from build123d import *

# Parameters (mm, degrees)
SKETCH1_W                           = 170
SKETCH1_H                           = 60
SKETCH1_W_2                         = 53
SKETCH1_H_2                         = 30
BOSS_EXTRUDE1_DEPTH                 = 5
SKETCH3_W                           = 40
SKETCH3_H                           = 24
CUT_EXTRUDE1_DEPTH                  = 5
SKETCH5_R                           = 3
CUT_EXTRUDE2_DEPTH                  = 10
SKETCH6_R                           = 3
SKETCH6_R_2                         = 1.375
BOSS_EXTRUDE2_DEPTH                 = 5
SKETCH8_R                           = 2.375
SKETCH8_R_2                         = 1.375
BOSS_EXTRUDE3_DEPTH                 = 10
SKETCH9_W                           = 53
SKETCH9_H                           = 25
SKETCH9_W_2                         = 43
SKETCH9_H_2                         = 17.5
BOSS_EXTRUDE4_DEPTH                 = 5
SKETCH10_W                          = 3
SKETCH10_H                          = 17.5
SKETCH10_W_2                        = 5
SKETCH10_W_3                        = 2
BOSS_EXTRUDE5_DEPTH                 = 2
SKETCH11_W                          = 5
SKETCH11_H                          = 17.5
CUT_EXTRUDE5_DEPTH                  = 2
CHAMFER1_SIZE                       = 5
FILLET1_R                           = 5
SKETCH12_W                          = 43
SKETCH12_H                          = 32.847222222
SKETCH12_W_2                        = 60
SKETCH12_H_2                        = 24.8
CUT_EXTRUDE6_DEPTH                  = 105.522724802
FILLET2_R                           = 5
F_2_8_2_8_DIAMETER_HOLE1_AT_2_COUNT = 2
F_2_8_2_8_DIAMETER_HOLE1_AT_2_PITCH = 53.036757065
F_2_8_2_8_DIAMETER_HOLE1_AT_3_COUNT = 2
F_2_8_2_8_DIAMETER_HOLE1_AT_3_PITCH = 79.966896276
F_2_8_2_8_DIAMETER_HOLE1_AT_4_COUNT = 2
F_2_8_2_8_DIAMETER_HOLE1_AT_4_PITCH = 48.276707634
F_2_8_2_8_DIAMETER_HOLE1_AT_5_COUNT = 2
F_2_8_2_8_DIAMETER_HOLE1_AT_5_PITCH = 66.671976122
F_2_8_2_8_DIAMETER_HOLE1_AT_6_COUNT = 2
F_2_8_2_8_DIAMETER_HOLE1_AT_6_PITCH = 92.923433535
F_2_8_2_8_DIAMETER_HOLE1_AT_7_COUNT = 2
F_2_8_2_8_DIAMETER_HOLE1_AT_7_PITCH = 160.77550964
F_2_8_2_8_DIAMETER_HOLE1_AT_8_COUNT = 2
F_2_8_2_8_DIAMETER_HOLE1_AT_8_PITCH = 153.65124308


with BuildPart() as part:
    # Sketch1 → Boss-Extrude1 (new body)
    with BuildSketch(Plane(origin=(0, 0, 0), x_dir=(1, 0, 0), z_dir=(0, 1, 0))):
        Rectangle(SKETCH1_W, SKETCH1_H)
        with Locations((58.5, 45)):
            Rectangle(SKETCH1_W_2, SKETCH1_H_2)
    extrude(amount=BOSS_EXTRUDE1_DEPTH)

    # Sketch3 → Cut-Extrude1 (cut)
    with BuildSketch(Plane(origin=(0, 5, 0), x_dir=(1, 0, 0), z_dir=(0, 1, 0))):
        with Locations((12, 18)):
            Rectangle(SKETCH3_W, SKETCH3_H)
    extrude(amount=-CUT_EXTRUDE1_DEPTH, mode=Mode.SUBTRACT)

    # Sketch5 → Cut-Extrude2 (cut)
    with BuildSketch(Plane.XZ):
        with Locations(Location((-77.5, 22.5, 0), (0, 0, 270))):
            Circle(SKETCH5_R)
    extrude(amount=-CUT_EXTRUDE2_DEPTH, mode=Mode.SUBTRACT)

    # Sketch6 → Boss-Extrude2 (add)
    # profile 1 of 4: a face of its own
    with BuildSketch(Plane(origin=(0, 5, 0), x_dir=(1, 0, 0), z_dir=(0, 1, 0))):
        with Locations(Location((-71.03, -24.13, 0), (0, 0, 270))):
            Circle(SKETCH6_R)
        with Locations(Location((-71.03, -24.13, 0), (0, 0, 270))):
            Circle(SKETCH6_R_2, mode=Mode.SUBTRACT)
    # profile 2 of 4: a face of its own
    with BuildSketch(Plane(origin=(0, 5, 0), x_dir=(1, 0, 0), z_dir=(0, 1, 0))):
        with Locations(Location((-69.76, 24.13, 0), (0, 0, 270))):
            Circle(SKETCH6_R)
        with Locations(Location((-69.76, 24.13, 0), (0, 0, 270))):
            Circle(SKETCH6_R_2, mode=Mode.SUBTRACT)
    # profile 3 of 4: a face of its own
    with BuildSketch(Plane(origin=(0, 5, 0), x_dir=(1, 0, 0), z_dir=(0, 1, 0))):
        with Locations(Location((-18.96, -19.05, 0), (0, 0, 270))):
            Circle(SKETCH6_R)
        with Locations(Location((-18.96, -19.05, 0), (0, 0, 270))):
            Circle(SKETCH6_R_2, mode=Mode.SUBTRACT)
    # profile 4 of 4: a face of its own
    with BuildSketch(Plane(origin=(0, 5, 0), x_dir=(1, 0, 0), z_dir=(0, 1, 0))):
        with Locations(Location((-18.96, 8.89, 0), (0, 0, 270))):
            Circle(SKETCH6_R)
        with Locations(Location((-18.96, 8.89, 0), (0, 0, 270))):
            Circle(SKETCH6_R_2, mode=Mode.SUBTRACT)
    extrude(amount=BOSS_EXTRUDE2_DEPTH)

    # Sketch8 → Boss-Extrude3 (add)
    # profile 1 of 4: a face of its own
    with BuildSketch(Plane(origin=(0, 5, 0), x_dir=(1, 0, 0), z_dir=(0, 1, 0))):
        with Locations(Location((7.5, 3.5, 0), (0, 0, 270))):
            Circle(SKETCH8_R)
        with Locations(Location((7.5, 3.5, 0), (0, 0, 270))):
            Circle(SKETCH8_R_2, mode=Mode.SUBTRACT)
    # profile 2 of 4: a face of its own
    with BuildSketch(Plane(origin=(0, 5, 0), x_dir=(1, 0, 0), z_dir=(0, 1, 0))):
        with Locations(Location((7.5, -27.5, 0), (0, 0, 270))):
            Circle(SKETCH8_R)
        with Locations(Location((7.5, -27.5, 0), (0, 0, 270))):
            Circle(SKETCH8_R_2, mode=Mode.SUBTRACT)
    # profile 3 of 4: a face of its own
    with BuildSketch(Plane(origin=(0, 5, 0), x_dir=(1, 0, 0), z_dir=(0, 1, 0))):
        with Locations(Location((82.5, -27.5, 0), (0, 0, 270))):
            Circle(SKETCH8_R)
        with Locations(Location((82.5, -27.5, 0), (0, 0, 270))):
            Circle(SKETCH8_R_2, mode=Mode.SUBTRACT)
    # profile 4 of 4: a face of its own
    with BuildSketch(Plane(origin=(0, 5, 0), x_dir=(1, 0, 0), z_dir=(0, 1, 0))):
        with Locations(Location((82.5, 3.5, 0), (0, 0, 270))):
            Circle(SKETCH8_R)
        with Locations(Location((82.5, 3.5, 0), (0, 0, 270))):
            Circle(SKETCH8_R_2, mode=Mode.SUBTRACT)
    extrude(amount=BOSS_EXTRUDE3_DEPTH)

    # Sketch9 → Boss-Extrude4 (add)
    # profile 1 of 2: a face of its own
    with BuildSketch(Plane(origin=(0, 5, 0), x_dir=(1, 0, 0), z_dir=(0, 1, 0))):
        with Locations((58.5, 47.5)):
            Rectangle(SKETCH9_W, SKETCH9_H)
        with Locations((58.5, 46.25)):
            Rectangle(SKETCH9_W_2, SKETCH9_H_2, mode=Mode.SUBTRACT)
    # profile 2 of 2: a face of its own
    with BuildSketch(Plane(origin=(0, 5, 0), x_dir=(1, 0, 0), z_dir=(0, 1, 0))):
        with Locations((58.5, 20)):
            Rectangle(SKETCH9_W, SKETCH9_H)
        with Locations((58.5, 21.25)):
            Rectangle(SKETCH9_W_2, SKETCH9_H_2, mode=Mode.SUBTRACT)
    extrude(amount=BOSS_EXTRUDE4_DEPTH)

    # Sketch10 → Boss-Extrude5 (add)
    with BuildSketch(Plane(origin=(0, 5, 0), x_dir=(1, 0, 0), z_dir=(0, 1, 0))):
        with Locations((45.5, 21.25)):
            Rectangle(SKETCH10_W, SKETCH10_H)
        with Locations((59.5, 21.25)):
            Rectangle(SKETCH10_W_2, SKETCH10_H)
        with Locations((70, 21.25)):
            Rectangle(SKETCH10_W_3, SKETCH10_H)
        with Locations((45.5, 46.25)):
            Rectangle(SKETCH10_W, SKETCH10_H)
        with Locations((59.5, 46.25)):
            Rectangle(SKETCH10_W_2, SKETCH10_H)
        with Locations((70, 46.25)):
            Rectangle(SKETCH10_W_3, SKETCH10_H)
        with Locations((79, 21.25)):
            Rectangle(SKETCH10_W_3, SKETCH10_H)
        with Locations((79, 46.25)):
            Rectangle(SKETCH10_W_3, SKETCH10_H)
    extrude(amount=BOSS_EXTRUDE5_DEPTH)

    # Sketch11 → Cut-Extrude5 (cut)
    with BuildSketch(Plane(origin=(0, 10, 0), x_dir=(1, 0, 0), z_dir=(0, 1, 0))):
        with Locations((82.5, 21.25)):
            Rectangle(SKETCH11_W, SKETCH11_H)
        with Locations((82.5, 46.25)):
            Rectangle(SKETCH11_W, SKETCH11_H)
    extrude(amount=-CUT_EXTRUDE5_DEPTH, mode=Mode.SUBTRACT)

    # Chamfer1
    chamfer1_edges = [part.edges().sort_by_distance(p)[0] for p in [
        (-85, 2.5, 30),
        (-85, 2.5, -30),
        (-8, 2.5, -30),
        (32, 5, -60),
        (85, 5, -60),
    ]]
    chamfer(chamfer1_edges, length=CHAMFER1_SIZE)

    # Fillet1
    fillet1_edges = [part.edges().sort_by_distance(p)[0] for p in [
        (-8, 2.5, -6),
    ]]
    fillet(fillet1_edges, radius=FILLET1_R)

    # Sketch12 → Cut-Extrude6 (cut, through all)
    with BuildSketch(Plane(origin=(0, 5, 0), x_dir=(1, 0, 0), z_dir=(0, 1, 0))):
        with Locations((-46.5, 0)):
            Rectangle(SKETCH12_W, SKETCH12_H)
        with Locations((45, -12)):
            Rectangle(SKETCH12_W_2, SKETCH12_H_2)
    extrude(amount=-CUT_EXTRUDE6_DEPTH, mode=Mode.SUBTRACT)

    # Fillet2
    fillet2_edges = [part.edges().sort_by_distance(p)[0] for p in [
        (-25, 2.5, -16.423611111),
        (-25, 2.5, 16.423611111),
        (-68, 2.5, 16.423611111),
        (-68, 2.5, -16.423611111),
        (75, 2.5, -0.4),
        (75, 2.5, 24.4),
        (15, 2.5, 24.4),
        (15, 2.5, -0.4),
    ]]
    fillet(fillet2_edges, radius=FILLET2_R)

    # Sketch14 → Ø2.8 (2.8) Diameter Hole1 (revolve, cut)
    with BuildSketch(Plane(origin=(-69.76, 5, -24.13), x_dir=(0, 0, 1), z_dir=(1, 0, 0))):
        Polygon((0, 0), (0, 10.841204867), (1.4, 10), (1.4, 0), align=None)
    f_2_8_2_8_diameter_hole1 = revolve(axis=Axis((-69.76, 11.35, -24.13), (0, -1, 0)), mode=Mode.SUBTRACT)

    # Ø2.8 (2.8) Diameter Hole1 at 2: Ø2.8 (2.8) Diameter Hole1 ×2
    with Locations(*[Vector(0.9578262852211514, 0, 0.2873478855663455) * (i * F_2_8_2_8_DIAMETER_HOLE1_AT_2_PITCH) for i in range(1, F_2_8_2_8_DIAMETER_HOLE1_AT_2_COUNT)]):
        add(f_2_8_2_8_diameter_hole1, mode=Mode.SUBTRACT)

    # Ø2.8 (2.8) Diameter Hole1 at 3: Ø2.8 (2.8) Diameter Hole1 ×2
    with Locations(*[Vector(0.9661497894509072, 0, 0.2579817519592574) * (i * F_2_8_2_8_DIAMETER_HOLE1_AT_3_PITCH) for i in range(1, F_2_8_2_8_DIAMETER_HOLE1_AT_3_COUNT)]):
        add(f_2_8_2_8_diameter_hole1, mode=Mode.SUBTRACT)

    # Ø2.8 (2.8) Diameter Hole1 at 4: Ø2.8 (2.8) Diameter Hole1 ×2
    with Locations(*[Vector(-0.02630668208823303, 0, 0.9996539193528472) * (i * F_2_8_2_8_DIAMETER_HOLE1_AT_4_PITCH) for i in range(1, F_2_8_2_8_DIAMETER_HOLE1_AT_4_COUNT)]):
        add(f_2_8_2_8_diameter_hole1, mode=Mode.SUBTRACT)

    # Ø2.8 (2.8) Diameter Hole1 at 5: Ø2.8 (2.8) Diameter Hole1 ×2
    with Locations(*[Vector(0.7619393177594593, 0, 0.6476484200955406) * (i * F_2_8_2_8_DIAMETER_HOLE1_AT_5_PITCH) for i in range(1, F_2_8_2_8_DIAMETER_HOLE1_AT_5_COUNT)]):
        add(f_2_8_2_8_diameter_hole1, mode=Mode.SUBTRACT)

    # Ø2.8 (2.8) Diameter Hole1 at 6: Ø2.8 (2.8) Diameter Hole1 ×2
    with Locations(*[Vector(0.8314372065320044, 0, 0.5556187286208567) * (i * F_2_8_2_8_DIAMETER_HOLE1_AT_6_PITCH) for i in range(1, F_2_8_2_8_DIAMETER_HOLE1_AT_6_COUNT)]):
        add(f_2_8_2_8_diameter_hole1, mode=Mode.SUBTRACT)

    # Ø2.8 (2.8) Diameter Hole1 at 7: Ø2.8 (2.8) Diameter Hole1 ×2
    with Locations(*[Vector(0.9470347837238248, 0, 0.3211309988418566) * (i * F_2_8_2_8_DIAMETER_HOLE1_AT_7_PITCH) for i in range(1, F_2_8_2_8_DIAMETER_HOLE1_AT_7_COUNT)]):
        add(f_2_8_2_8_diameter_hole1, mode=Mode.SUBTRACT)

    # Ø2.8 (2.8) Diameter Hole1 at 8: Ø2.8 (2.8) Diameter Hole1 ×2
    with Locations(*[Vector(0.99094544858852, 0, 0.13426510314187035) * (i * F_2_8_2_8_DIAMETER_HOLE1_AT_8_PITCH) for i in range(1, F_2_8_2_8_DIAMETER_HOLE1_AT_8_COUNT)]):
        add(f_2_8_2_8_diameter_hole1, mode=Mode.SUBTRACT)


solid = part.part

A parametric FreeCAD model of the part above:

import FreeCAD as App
import Part
import Sketcher
Q = App.Units.Quantity


def edges_at(feature, points):
    """Names of the edges that pass closest to the given points."""
    edges = feature.Shape.Edges
    near = lambda p: min(range(len(edges)), key=lambda i: edges[i].distToShape(Part.Vertex(*p))[0])
    return sorted({f"Edge{near(p) + 1}" for p in points})

doc = App.newDocument("Part")
body = doc.addObject("PartDesign::Body", "Body")

# Sketch on XZ plane
sketch1 = body.newObject("Sketcher::SketchObject", "Sketch")
sketch1.AttachmentSupport = (doc.getObject("XZ_Plane"), [""])
sketch1.MapMode = "FlatFace"
sketch1.addGeometry(Part.LineSegment(App.Vector(-85, -30, 0), App.Vector(-85, 30, 0)), False)
sketch1.addGeometry(Part.LineSegment(App.Vector(-85, 30, 0), App.Vector(85, 30, 0)), False)
sketch1.addGeometry(Part.LineSegment(App.Vector(85, 30, 0), App.Vector(85, -60, 0)), False)
sketch1.addGeometry(Part.LineSegment(App.Vector(85, -60, 0), App.Vector(32, -60, 0)), False)
sketch1.addGeometry(Part.LineSegment(App.Vector(32, -60, 0), App.Vector(32, -30, 0)), False)
sketch1.addGeometry(Part.LineSegment(App.Vector(32, -30, 0), App.Vector(-85, -30, 0)), False)
sketch1.addConstraint(Sketcher.Constraint("Coincident", 0, 2, 1, 1))
sketch1.addConstraint(Sketcher.Constraint("Coincident", 1, 2, 2, 1))
sketch1.addConstraint(Sketcher.Constraint("Coincident", 2, 2, 3, 1))
sketch1.addConstraint(Sketcher.Constraint("Coincident", 3, 2, 4, 1))
sketch1.addConstraint(Sketcher.Constraint("Coincident", 4, 2, 5, 1))
sketch1.addConstraint(Sketcher.Constraint("Coincident", 5, 2, 0, 1))
sketch1.addConstraint(Sketcher.Constraint("Vertical", 0))
sketch1.addConstraint(Sketcher.Constraint("Horizontal", 1))
sketch1.addConstraint(Sketcher.Constraint("Vertical", 2))
sketch1.addConstraint(Sketcher.Constraint("Horizontal", 3))
sketch1.addConstraint(Sketcher.Constraint("Vertical", 4))
sketch1.addConstraint(Sketcher.Constraint("Horizontal", 5))
sketch1.addConstraint(Sketcher.Constraint("Symmetric", 1, 2, 5, 2, -1, 1))
sketch1.addConstraint(Sketcher.Constraint("DistanceX", 1, 1, 1, 2, Q("170 mm")))
sketch1.addConstraint(Sketcher.Constraint("DistanceX", 3, 2, 3, 1, Q("53 mm")))
sketch1.addConstraint(Sketcher.Constraint("DistanceY", 0, 1, 0, 2, Q("60 mm")))
sketch1.addConstraint(Sketcher.Constraint("DistanceY", 2, 2, 2, 1, Q("90 mm")))
pad1 = body.newObject("PartDesign::Pad", "Pad")
pad1.Profile = sketch1
pad1.Length = 5
pad1.Reversed = True

# Sketch on XZ plane
sketch2 = body.newObject("Sketcher::SketchObject", "Sketch001")
sketch2.AttachmentSupport = (doc.getObject("XZ_Plane"), [""])
sketch2.MapMode = "FlatFace"
sketch2.AttachmentOffset = App.Placement(App.Vector(0, 0, -5), App.Rotation())
sketch2.addGeometry(Part.LineSegment(App.Vector(-8, -30, 0), App.Vector(-8, -6, 0)), False)
sketch2.addGeometry(Part.LineSegment(App.Vector(-8, -6, 0), App.Vector(32, -6, 0)), False)
sketch2.addGeometry(Part.LineSegment(App.Vector(32, -6, 0), App.Vector(32, -30, 0)), False)
sketch2.addGeometry(Part.LineSegment(App.Vector(32, -30, 0), App.Vector(-8, -30, 0)), False)
sketch2.addConstraint(Sketcher.Constraint("Coincident", 0, 2, 1, 1))
sketch2.addConstraint(Sketcher.Constraint("Coincident", 1, 2, 2, 1))
sketch2.addConstraint(Sketcher.Constraint("Coincident", 2, 2, 3, 1))
sketch2.addConstraint(Sketcher.Constraint("Coincident", 3, 2, 0, 1))
sketch2.addConstraint(Sketcher.Constraint("Vertical", 0))
sketch2.addConstraint(Sketcher.Constraint("Horizontal", 1))
sketch2.addConstraint(Sketcher.Constraint("Vertical", 2))
sketch2.addConstraint(Sketcher.Constraint("Horizontal", 3))
sketch2.addConstraint(Sketcher.Constraint("DistanceX", 1, 1, 1, 2, Q("40 mm")))
sketch2.addConstraint(Sketcher.Constraint("DistanceY", 0, 1, 0, 2, Q("24 mm")))
sketch2.addConstraint(Sketcher.Constraint("DistanceX", 0, 2, -1, 1, Q("8 mm")))
sketch2.addConstraint(Sketcher.Constraint("DistanceY", 0, 2, -1, 1, Q("6 mm")))
pocket1 = body.newObject("PartDesign::Pocket", "Pocket")
pocket1.Profile = sketch2
pocket1.Length = 5
pocket1.Reversed = True

# Sketch on XZ plane
sketch3 = body.newObject("Sketcher::SketchObject", "Sketch002")
sketch3.AttachmentSupport = (doc.getObject("XZ_Plane"), [""])
sketch3.MapMode = "FlatFace"
sketch3.addGeometry(Part.Circle(App.Vector(-77.5, 22.5, 0), App.Vector(0, 0, 1), 3), False)
sketch3.addConstraint(Sketcher.Constraint("Diameter", 0, Q("6 mm")))
sketch3.addConstraint(Sketcher.Constraint("DistanceX", 0, 3, -1, 1, Q("77.5 mm")))
sketch3.addConstraint(Sketcher.Constraint("DistanceY", -1, 1, 0, 3, Q("22.5 mm")))
pocket2 = body.newObject("PartDesign::Pocket", "Pocket001")
pocket2.Profile = sketch3
pocket2.Length = 10

# Sketch on XZ plane
sketch4 = body.newObject("Sketcher::SketchObject", "Sketch003")
sketch4.AttachmentSupport = (doc.getObject("XZ_Plane"), [""])
sketch4.MapMode = "FlatFace"
sketch4.AttachmentOffset = App.Placement(App.Vector(0, 0, -5), App.Rotation())
sketch4.addGeometry(Part.Circle(App.Vector(-71, 24.1, 0), App.Vector(0, 0, 1), 3), False)
sketch4.addGeometry(Part.Circle(App.Vector(-71, 24.1, 0), App.Vector(0, 0, 1), 1.4), False)
sketch4.addGeometry(Part.Circle(App.Vector(-69.8, -24.1, 0), App.Vector(0, 0, 1), 3), False)
sketch4.addGeometry(Part.Circle(App.Vector(-69.8, -24.1, 0), App.Vector(0, 0, 1), 1.4), False)
sketch4.addGeometry(Part.Circle(App.Vector(-19, 19.1, 0), App.Vector(0, 0, 1), 3), False)
sketch4.addGeometry(Part.Circle(App.Vector(-19, 19.1, 0), App.Vector(0, 0, 1), 1.4), False)
sketch4.addGeometry(Part.Circle(App.Vector(-19, -8.9, 0), App.Vector(0, 0, 1), 3), False)
sketch4.addGeometry(Part.Circle(App.Vector(-19, -8.9, 0), App.Vector(0, 0, 1), 1.4), False)
sketch4.addConstraint(Sketcher.Constraint("Coincident", 1, 3, 0, 3))
sketch4.addConstraint(Sketcher.Constraint("Coincident", 3, 3, 2, 3))
sketch4.addConstraint(Sketcher.Constraint("Coincident", 5, 3, 4, 3))
sketch4.addConstraint(Sketcher.Constraint("Coincident", 7, 3, 6, 3))
sketch4.addConstraint(Sketcher.Constraint("Equal", 0, 2))
sketch4.addConstraint(Sketcher.Constraint("Equal", 1, 3))
sketch4.addConstraint(Sketcher.Constraint("Equal", 2, 4))
sketch4.addConstraint(Sketcher.Constraint("Equal", 3, 5))
sketch4.addConstraint(Sketcher.Constraint("Equal", 4, 6))
sketch4.addConstraint(Sketcher.Constraint("Equal", 5, 7))
sketch4.addConstraint(Sketcher.Constraint("Vertical", 5, 3, 6, 3))
sketch4.addConstraint(Sketcher.Constraint("Diameter", 0, Q("6 mm")))
sketch4.addConstraint(Sketcher.Constraint("Diameter", 1, Q("2.75 mm")))
sketch4.addConstraint(Sketcher.Constraint("DistanceX", 2, 3, 4, 3, Q("50.8 mm")))
sketch4.addConstraint(Sketcher.Constraint("DistanceX", 0, 3, -1, 1, Q("71.03 mm")))
sketch4.addConstraint(Sketcher.Constraint("DistanceY", -1, 1, 0, 3, Q("24.13 mm")))
sketch4.addConstraint(Sketcher.Constraint("DistanceX", 2, 3, -1, 1, Q("69.76 mm")))
sketch4.addConstraint(Sketcher.Constraint("DistanceY", 2, 3, -1, 1, Q("24.13 mm")))
sketch4.addConstraint(Sketcher.Constraint("DistanceY", -1, 1, 4, 3, Q("19.05 mm")))
sketch4.addConstraint(Sketcher.Constraint("DistanceY", 6, 3, -1, 1, Q("8.89 mm")))
pad2 = body.newObject("PartDesign::Pad", "Pad001")
pad2.Profile = sketch4
pad2.Length = 5
pad2.Reversed = True

# Sketch on XZ plane
sketch5 = body.newObject("Sketcher::SketchObject", "Sketch004")
sketch5.AttachmentSupport = (doc.getObject("XZ_Plane"), [""])
sketch5.MapMode = "FlatFace"
sketch5.AttachmentOffset = App.Placement(App.Vector(0, 0, -5), App.Rotation())
sketch5.addGeometry(Part.Circle(App.Vector(7.5, -3.5, 0), App.Vector(0, 0, 1), 2.4), False)
sketch5.addGeometry(Part.Circle(App.Vector(7.5, -3.5, 0), App.Vector(0, 0, 1), 1.4), False)
sketch5.addGeometry(Part.Circle(App.Vector(7.5, 27.5, 0), App.Vector(0, 0, 1), 2.4), False)
sketch5.addGeometry(Part.Circle(App.Vector(7.5, 27.5, 0), App.Vector(0, 0, 1), 1.4), False)
sketch5.addGeometry(Part.Circle(App.Vector(82.5, 27.5, 0), App.Vector(0, 0, 1), 2.4), False)
sketch5.addGeometry(Part.Circle(App.Vector(82.5, 27.5, 0), App.Vector(0, 0, 1), 1.4), False)
sketch5.addGeometry(Part.Circle(App.Vector(82.5, -3.5, 0), App.Vector(0, 0, 1), 2.4), False)
sketch5.addGeometry(Part.Circle(App.Vector(82.5, -3.5, 0), App.Vector(0, 0, 1), 1.4), False)
sketch5.addConstraint(Sketcher.Constraint("Coincident", 1, 3, 0, 3))
sketch5.addConstraint(Sketcher.Constraint("Coincident", 3, 3, 2, 3))
sketch5.addConstraint(Sketcher.Constraint("Coincident", 5, 3, 4, 3))
sketch5.addConstraint(Sketcher.Constraint("Coincident", 7, 3, 6, 3))
sketch5.addConstraint(Sketcher.Constraint("Equal", 0, 2))
sketch5.addConstraint(Sketcher.Constraint("Equal", 1, 3))
sketch5.addConstraint(Sketcher.Constraint("Equal", 2, 4))
sketch5.addConstraint(Sketcher.Constraint("Equal", 3, 5))
sketch5.addConstraint(Sketcher.Constraint("Equal", 4, 6))
sketch5.addConstraint(Sketcher.Constraint("Equal", 5, 7))
sketch5.addConstraint(Sketcher.Constraint("Horizontal", 3, 3, 4, 3))
sketch5.addConstraint(Sketcher.Constraint("Horizontal", 1, 3, 6, 3))
sketch5.addConstraint(Sketcher.Constraint("Vertical", 1, 3, 2, 3))
sketch5.addConstraint(Sketcher.Constraint("Vertical", 5, 3, 6, 3))
sketch5.addConstraint(Sketcher.Constraint("Diameter", 0, Q("4.75 mm")))
sketch5.addConstraint(Sketcher.Constraint("Diameter", 1, Q("2.75 mm")))
sketch5.addConstraint(Sketcher.Constraint("DistanceY", 0, 3, 2, 3, Q("31 mm")))
sketch5.addConstraint(Sketcher.Constraint("DistanceX", 2, 3, 4, 3, Q("75 mm")))
sketch5.addConstraint(Sketcher.Constraint("DistanceX", -1, 1, 0, 3, Q("7.5 mm")))
sketch5.addConstraint(Sketcher.Constraint("DistanceY", 0, 3, -1, 1, Q("3.5 mm")))
pad3 = body.newObject("PartDesign::Pad", "Pad002")
pad3.Profile = sketch5
pad3.Length = 10
pad3.Reversed = True

# Sketch on XZ plane
sketch6 = body.newObject("Sketcher::SketchObject", "Sketch005")
sketch6.AttachmentSupport = (doc.getObject("XZ_Plane"), [""])
sketch6.MapMode = "FlatFace"
sketch6.AttachmentOffset = App.Placement(App.Vector(0, 0, -5), App.Rotation())
sketch6.addGeometry(Part.LineSegment(App.Vector(32, -60, 0), App.Vector(32, -35, 0)), False)
sketch6.addGeometry(Part.LineSegment(App.Vector(32, -35, 0), App.Vector(85, -35, 0)), False)
sketch6.addGeometry(Part.LineSegment(App.Vector(85, -35, 0), App.Vector(85, -60, 0)), False)
sketch6.addGeometry(Part.LineSegment(App.Vector(85, -60, 0), App.Vector(32, -60, 0)), False)
sketch6.addGeometry(Part.LineSegment(App.Vector(80, -38, 0), App.Vector(37, -38, 0)), False)
sketch6.addGeometry(Part.LineSegment(App.Vector(37, -38, 0), App.Vector(37, -55, 0)), False)
sketch6.addGeometry(Part.LineSegment(App.Vector(37, -55, 0), App.Vector(80, -55, 0)), False)
sketch6.addGeometry(Part.LineSegment(App.Vector(80, -55, 0), App.Vector(80, -38, 0)), False)
sketch6.addGeometry(Part.LineSegment(App.Vector(32, -32, 0), App.Vector(32, -8, 0)), False)
sketch6.addGeometry(Part.LineSegment(App.Vector(32, -8, 0), App.Vector(85, -8, 0)), False)
sketch6.addGeometry(Part.LineSegment(App.Vector(85, -8, 0), App.Vector(85, -32, 0)), False)
sketch6.addGeometry(Part.LineSegment(App.Vector(85, -32, 0), App.Vector(32, -32, 0)), False)
sketch6.addGeometry(Part.LineSegment(App.Vector(80, -12, 0), App.Vector(37, -12, 0)), False)
sketch6.addGeometry(Part.LineSegment(App.Vector(37, -12, 0), App.Vector(37, -30, 0)), False)
sketch6.addGeometry(Part.LineSegment(App.Vector(37, -30, 0), App.Vector(80, -30, 0)), False)
sketch6.addGeometry(Part.LineSegment(App.Vector(80, -30, 0), App.Vector(80, -12, 0)), False)
sketch6.addConstraint(Sketcher.Constraint("Coincident", 0, 2, 1, 1))
sketch6.addConstraint(Sketcher.Constraint("Coincident", 1, 2, 2, 1))
sketch6.addConstraint(Sketcher.Constraint("Coincident", 2, 2, 3, 1))
sketch6.addConstraint(Sketcher.Constraint("Coincident", 3, 2, 0, 1))
sketch6.addConstraint(Sketcher.Constraint("Coincident", 4, 2, 5, 1))
sketch6.addConstraint(Sketcher.Constraint("Coincident", 5, 2, 6, 1))
sketch6.addConstraint(Sketcher.Constraint("Coincident", 6, 2, 7, 1))
sketch6.addConstraint(Sketcher.Constraint("Coincident", 7, 2, 4, 1))
sketch6.addConstraint(Sketcher.Constraint("Coincident", 8, 2, 9, 1))
sketch6.addConstraint(Sketcher.Constraint("Coincident", 9, 2, 10, 1))
sketch6.addConstraint(Sketcher.Constraint("Coincident", 10, 2, 11, 1))
sketch6.addConstraint(Sketcher.Constraint("Coincident", 11, 2, 8, 1))
sketch6.addConstraint(Sketcher.Constraint("Coincident", 12, 2, 13, 1))
sketch6.addConstraint(Sketcher.Constraint("Coincident", 13, 2, 14, 1))
sketch6.addConstraint(Sketcher.Constraint("Coincident", 14, 2, 15, 1))
sketch6.addConstraint(Sketcher.Constraint("Coincident", 15, 2, 12, 1))
sketch6.addConstraint(Sketcher.Constraint("Vertical", 0))
sketch6.addConstraint(Sketcher.Constraint("Horizontal", 1))
sketch6.addConstraint(Sketcher.Constraint("Vertical", 2))
sketch6.addConstraint(Sketcher.Constraint("Horizontal", 3))
sketch6.addConstraint(Sketcher.Constraint("Horizontal", 4))
sketch6.addConstraint(Sketcher.Constraint("Vertical", 5))
sketch6.addConstraint(Sketcher.Constraint("Horizontal", 6))
sketch6.addConstraint(Sketcher.Constraint("Vertical", 7))
sketch6.addConstraint(Sketcher.Constraint("Vertical", 8))
sketch6.addConstraint(Sketcher.Constraint("Horizontal", 9))
sketch6.addConstraint(Sketcher.Constraint("Vertical", 10))
sketch6.addConstraint(Sketcher.Constraint("Horizontal", 11))
sketch6.addConstraint(Sketcher.Constraint("Horizontal", 12))
sketch6.addConstraint(Sketcher.Constraint("Vertical", 13))
sketch6.addConstraint(Sketcher.Constraint("Horizontal", 14))
sketch6.addConstraint(Sketcher.Constraint("Vertical", 15))
sketch6.addConstraint(Sketcher.Constraint("Vertical", 3, 2, 8, 2))
sketch6.addConstraint(Sketcher.Constraint("Vertical", 2, 2, 9, 2))
sketch6.addConstraint(Sketcher.Constraint("Vertical", 5, 2, 12, 2))
sketch6.addConstraint(Sketcher.Constraint("Vertical", 7, 2, 14, 2))
sketch6.addConstraint(Sketcher.Constraint("Equal", 2, 8))
sketch6.addConstraint(Sketcher.Constraint("Equal", 7, 13))
sketch6.addConstraint(Sketcher.Constraint("DistanceX", 1, 1, 1, 2, Q("53 mm")))
sketch6.addConstraint(Sketcher.Constraint("DistanceX", 4, 2, 4, 1, Q("43 mm")))
sketch6.addConstraint(Sketcher.Constraint("DistanceY", 0, 1, 0, 2, Q("25 mm")))
sketch6.addConstraint(Sketcher.Constraint("DistanceY", 5, 2, 5, 1, Q("17.5 mm")))
sketch6.addConstraint(Sketcher.Constraint("DistanceX", -1, 1, 0, 2, Q("32 mm")))
sketch6.addConstraint(Sketcher.Constraint("DistanceY", 0, 2, -1, 1, Q("35 mm")))
sketch6.addConstraint(Sketcher.Constraint("DistanceX", -1, 1, 4, 2, Q("37 mm")))
sketch6.addConstraint(Sketcher.Constraint("DistanceY", 5, 2, -1, 1, Q("55 mm")))
sketch6.addConstraint(Sketcher.Constraint("DistanceY", 13, 2, -1, 1, Q("30 mm")))
sketch6.addConstraint(Sketcher.Constraint("DistanceY", 4, 2, 8, 2, Q("30 mm")))
pad4 = body.newObject("PartDesign::Pad", "Pad003")
pad4.Profile = sketch6
pad4.Length = 5
pad4.Reversed = True

# Sketch on XZ plane
sketch7 = body.newObject("Sketcher::SketchObject", "Sketch006")
sketch7.AttachmentSupport = (doc.getObject("XZ_Plane"), [""])
sketch7.MapMode = "FlatFace"
sketch7.AttachmentOffset = App.Placement(App.Vector(0, 0, -5), App.Rotation())
sketch7.addGeometry(Part.LineSegment(App.Vector(44, -30, 0), App.Vector(44, -12.5, 0)), False)
sketch7.addGeometry(Part.LineSegment(App.Vector(44, -12.5, 0), App.Vector(47, -12.5, 0)), False)
sketch7.addGeometry(Part.LineSegment(App.Vector(47, -12.5, 0), App.Vector(47, -30, 0)), False)
sketch7.addGeometry(Part.LineSegment(App.Vector(47, -30, 0), App.Vector(44, -30, 0)), False)
sketch7.addGeometry(Part.LineSegment(App.Vector(57, -30, 0), App.Vector(57, -12.5, 0)), False)
sketch7.addGeometry(Part.LineSegment(App.Vector(57, -12.5, 0), App.Vector(62, -12.5, 0)), False)
sketch7.addGeometry(Part.LineSegment(App.Vector(62, -12.5, 0), App.Vector(62, -30, 0)), False)
sketch7.addGeometry(Part.LineSegment(App.Vector(62, -30, 0), App.Vector(57, -30, 0)), False)
sketch7.addGeometry(Part.LineSegment(App.Vector(69, -30, 0), App.Vector(69, -12.5, 0)), False)
sketch7.addGeometry(Part.LineSegment(App.Vector(69, -12.5, 0), App.Vector(71, -12.5, 0)), False)
sketch7.addGeometry(Part.LineSegment(App.Vector(71, -12.5, 0), App.Vector(71, -30, 0)), False)
sketch7.addGeometry(Part.LineSegment(App.Vector(71, -30, 0), App.Vector(69, -30, 0)), False)
sketch7.addGeometry(Part.LineSegment(App.Vector(44, -55, 0), App.Vector(44, -37.5, 0)), False)
sketch7.addGeometry(Part.LineSegment(App.Vector(44, -37.5, 0), App.Vector(47, -37.5, 0)), False)
sketch7.addGeometry(Part.LineSegment(App.Vector(47, -37.5, 0), App.Vector(47, -55, 0)), False)
sketch7.addGeometry(Part.LineSegment(App.Vector(47, -55, 0), App.Vector(44, -55, 0)), False)
sketch7.addGeometry(Part.LineSegment(App.Vector(57, -55, 0), App.Vector(57, -37.5, 0)), False)
sketch7.addGeometry(Part.LineSegment(App.Vector(57, -37.5, 0), App.Vector(62, -37.5, 0)), False)
sketch7.addGeometry(Part.LineSegment(App.Vector(62, -37.5, 0), App.Vector(62, -55, 0)), False)
sketch7.addGeometry(Part.LineSegment(App.Vector(62, -55, 0), App.Vector(57, -55, 0)), False)
sketch7.addGeometry(Part.LineSegment(App.Vector(69, -55, 0), App.Vector(69, -37.5, 0)), False)
sketch7.addGeometry(Part.LineSegment(App.Vector(69, -37.5, 0), App.Vector(71, -37.5, 0)), False)
sketch7.addGeometry(Part.LineSegment(App.Vector(71, -37.5, 0), App.Vector(71, -55, 0)), False)
sketch7.addGeometry(Part.LineSegment(App.Vector(71, -55, 0), App.Vector(69, -55, 0)), False)
sketch7.addGeometry(Part.LineSegment(App.Vector(78, -30, 0), App.Vector(78, -12.5, 0)), False)
sketch7.addGeometry(Part.LineSegment(App.Vector(78, -12.5, 0), App.Vector(80, -12.5, 0)), False)
sketch7.addGeometry(Part.LineSegment(App.Vector(80, -12.5, 0), App.Vector(80, -30, 0)), False)
sketch7.addGeometry(Part.LineSegment(App.Vector(80, -30, 0), App.Vector(78, -30, 0)), False)
sketch7.addGeometry(Part.LineSegment(App.Vector(78, -55, 0), App.Vector(78, -37.5, 0)), False)
sketch7.addGeometry(Part.LineSegment(App.Vector(78, -37.5, 0), App.Vector(80, -37.5, 0)), False)
sketch7.addGeometry(Part.LineSegment(App.Vector(80, -37.5, 0), App.Vector(80, -55, 0)), False)
sketch7.addGeometry(Part.LineSegment(App.Vector(80, -55, 0), App.Vector(78, -55, 0)), False)
sketch7.addConstraint(Sketcher.Constraint("Coincident", 0, 2, 1, 1))
sketch7.addConstraint(Sketcher.Constraint("Coincident", 1, 2, 2, 1))
sketch7.addConstraint(Sketcher.Constraint("Coincident", 2, 2, 3, 1))
sketch7.addConstraint(Sketcher.Constraint("Coincident", 3, 2, 0, 1))
sketch7.addConstraint(Sketcher.Constraint("Coincident", 4, 2, 5, 1))
sketch7.addConstraint(Sketcher.Constraint("Coincident", 5, 2, 6, 1))
sketch7.addConstraint(Sketcher.Constraint("Coincident", 6, 2, 7, 1))
sketch7.addConstraint(Sketcher.Constraint("Coincident", 7, 2, 4, 1))
sketch7.addConstraint(Sketcher.Constraint("Coincident", 8, 2, 9, 1))
sketch7.addConstraint(Sketcher.Constraint("Coincident", 9, 2, 10, 1))
sketch7.addConstraint(Sketcher.Constraint("Coincident", 10, 2, 11, 1))
sketch7.addConstraint(Sketcher.Constraint("Coincident", 11, 2, 8, 1))
sketch7.addConstraint(Sketcher.Constraint("Coincident", 12, 2, 13, 1))
sketch7.addConstraint(Sketcher.Constraint("Coincident", 13, 2, 14, 1))
sketch7.addConstraint(Sketcher.Constraint("Coincident", 14, 2, 15, 1))
sketch7.addConstraint(Sketcher.Constraint("Coincident", 15, 2, 12, 1))
sketch7.addConstraint(Sketcher.Constraint("Coincident", 16, 2, 17, 1))
sketch7.addConstraint(Sketcher.Constraint("Coincident", 17, 2, 18, 1))
sketch7.addConstraint(Sketcher.Constraint("Coincident", 18, 2, 19, 1))
sketch7.addConstraint(Sketcher.Constraint("Coincident", 19, 2, 16, 1))
sketch7.addConstraint(Sketcher.Constraint("Coincident", 20, 2, 21, 1))
sketch7.addConstraint(Sketcher.Constraint("Coincident", 21, 2, 22, 1))
sketch7.addConstraint(Sketcher.Constraint("Coincident", 22, 2, 23, 1))
sketch7.addConstraint(Sketcher.Constraint("Coincident", 23, 2, 20, 1))
sketch7.addConstraint(Sketcher.Constraint("Coincident", 24, 2, 25, 1))
sketch7.addConstraint(Sketcher.Constraint("Coincident", 25, 2, 26, 1))
sketch7.addConstraint(Sketcher.Constraint("Coincident", 26, 2, 27, 1))
sketch7.addConstraint(Sketcher.Constraint("Coincident", 27, 2, 24, 1))
sketch7.addConstraint(Sketcher.Constraint("Coincident", 28, 2, 29, 1))
sketch7.addConstraint(Sketcher.Constraint("Coincident", 29, 2, 30, 1))
sketch7.addConstraint(Sketcher.Constraint("Coincident", 30, 2, 31, 1))
sketch7.addConstraint(Sketcher.Constraint("Coincident", 31, 2, 28, 1))
sketch7.addConstraint(Sketcher.Constraint("Vertical", 0))
sketch7.addConstraint(Sketcher.Constraint("Horizontal", 1))
sketch7.addConstraint(Sketcher.Constraint("Vertical", 2))
sketch7.addConstraint(Sketcher.Constraint("Horizontal", 3))
sketch7.addConstraint(Sketcher.Constraint("Vertical", 4))
sketch7.addConstraint(Sketcher.Constraint("Horizontal", 5))
sketch7.addConstraint(Sketcher.Constraint("Vertical", 6))
sketch7.addConstraint(Sketcher.Constraint("Horizontal", 7))
sketch7.addConstraint(Sketcher.Constraint("Vertical", 8))
sketch7.addConstraint(Sketcher.Constraint("Horizontal", 9))
sketch7.addConstraint(Sketcher.Constraint("Vertical", 10))
sketch7.addConstraint(Sketcher.Constraint("Horizontal", 11))
sketch7.addConstraint(Sketcher.Constraint("Vertical", 12))
sketch7.addConstraint(Sketcher.Constraint("Horizontal", 13))
sketch7.addConstraint(Sketcher.Constraint("Vertical", 14))
sketch7.addConstraint(Sketcher.Constraint("Horizontal", 15))
sketch7.addConstraint(Sketcher.Constraint("Vertical", 16))
sketch7.addConstraint(Sketcher.Constraint("Horizontal", 17))
sketch7.addConstraint(Sketcher.Constraint("Vertical", 18))
sketch7.addConstraint(Sketcher.Constraint("Horizontal", 19))
sketch7.addConstraint(Sketcher.Constraint("Vertical", 20))
sketch7.addConstraint(Sketcher.Constraint("Horizontal", 21))
sketch7.addConstraint(Sketcher.Constraint("Vertical", 22))
sketch7.addConstraint(Sketcher.Constraint("Horizontal", 23))
sketch7.addConstraint(Sketcher.Constraint("Vertical", 24))
sketch7.addConstraint(Sketcher.Constraint("Horizontal", 25))
sketch7.addConstraint(Sketcher.Constraint("Vertical", 26))
sketch7.addConstraint(Sketcher.Constraint("Horizontal", 27))
sketch7.addConstraint(Sketcher.Constraint("Vertical", 28))
sketch7.addConstraint(Sketcher.Constraint("Horizontal", 29))
sketch7.addConstraint(Sketcher.Constraint("Vertical", 30))
sketch7.addConstraint(Sketcher.Constraint("Horizontal", 31))
sketch7.addConstraint(Sketcher.Constraint("Horizontal", 1, 2, 4, 2))
sketch7.addConstraint(Sketcher.Constraint("Horizontal", 3, 2, 6, 2))
sketch7.addConstraint(Sketcher.Constraint("Horizontal", 5, 2, 8, 2))
sketch7.addConstraint(Sketcher.Constraint("Horizontal", 7, 2, 10, 2))
sketch7.addConstraint(Sketcher.Constraint("Horizontal", 13, 2, 16, 2))
sketch7.addConstraint(Sketcher.Constraint("Horizontal", 15, 2, 18, 2))
sketch7.addConstraint(Sketcher.Constraint("Horizontal", 17, 2, 20, 2))
sketch7.addConstraint(Sketcher.Constraint("Horizontal", 19, 2, 22, 2))
sketch7.addConstraint(Sketcher.Constraint("Horizontal", 9, 2, 24, 2))
sketch7.addConstraint(Sketcher.Constraint("Horizontal", 11, 2, 26, 2))
sketch7.addConstraint(Sketcher.Constraint("Horizontal", 21, 2, 28, 2))
sketch7.addConstraint(Sketcher.Constraint("Horizontal", 23, 2, 30, 2))
sketch7.addConstraint(Sketcher.Constraint("Vertical", 3, 2, 12, 2))
sketch7.addConstraint(Sketcher.Constraint("Vertical", 2, 2, 13, 2))
sketch7.addConstraint(Sketcher.Constraint("Vertical", 7, 2, 16, 2))
sketch7.addConstraint(Sketcher.Constraint("Vertical", 6, 2, 17, 2))
sketch7.addConstraint(Sketcher.Constraint("Vertical", 11, 2, 20, 2))
sketch7.addConstraint(Sketcher.Constraint("Vertical", 10, 2, 21, 2))
sketch7.addConstraint(Sketcher.Constraint("Vertical", 27, 2, 28, 2))
sketch7.addConstraint(Sketcher.Constraint("Vertical", 26, 2, 29, 2))
sketch7.addConstraint(Sketcher.Constraint("Equal", 23, 25))
sketch7.addConstraint(Sketcher.Constraint("Equal", 10, 12))
sketch7.addConstraint(Sketcher.Constraint("DistanceX", 1, 1, 1, 2, Q("3 mm")))
sketch7.addConstraint(Sketcher.Constraint("DistanceX", 5, 1, 5, 2, Q("5 mm")))
sketch7.addConstraint(Sketcher.Constraint("DistanceX", 9, 1, 9, 2, Q("2 mm")))
sketch7.addConstraint(Sketcher.Constraint("DistanceY", 0, 1, 0, 2, Q("17.5 mm")))
sketch7.addConstraint(Sketcher.Constraint("DistanceX", -1, 1, 0, 2, Q("44 mm")))
sketch7.addConstraint(Sketcher.Constraint("DistanceY", 2, 2, -1, 1, Q("30 mm")))
sketch7.addConstraint(Sketcher.Constraint("DistanceX", -1, 1, 4, 2, Q("57 mm")))
sketch7.addConstraint(Sketcher.Constraint("DistanceX", -1, 1, 8, 2, Q("69 mm")))
sketch7.addConstraint(Sketcher.Constraint("DistanceY", 14, 2, -1, 1, Q("55 mm")))
sketch7.addConstraint(Sketcher.Constraint("DistanceX", -1, 1, 24, 2, Q("78 mm")))
pad5 = body.newObject("PartDesign::Pad", "Pad004")
pad5.Profile = sketch7
pad5.Length = 2
pad5.Reversed = True

# Sketch on XZ plane
sketch8 = body.newObject("Sketcher::SketchObject", "Sketch007")
sketch8.AttachmentSupport = (doc.getObject("XZ_Plane"), [""])
sketch8.MapMode = "FlatFace"
sketch8.AttachmentOffset = App.Placement(App.Vector(0, 0, -10), App.Rotation())
sketch8.addGeometry(Part.LineSegment(App.Vector(80, -30, 0), App.Vector(80, -12, 0)), False)
sketch8.addGeometry(Part.LineSegment(App.Vector(80, -12, 0), App.Vector(85, -12, 0)), False)
sketch8.addGeometry(Part.LineSegment(App.Vector(85, -12, 0), App.Vector(85, -30, 0)), False)
sketch8.addGeometry(Part.LineSegment(App.Vector(85, -30, 0), App.Vector(80, -30, 0)), False)
sketch8.addGeometry(Part.LineSegment(App.Vector(80, -55, 0), App.Vector(80, -38, 0)), False)
sketch8.addGeometry(Part.LineSegment(App.Vector(80, -38, 0), App.Vector(85, -38, 0)), False)
sketch8.addGeometry(Part.LineSegment(App.Vector(85, -38, 0), App.Vector(85, -55, 0)), False)
sketch8.addGeometry(Part.LineSegment(App.Vector(85, -55, 0), App.Vector(80, -55, 0)), False)
sketch8.addConstraint(Sketcher.Constraint("Coincident", 0, 2, 1, 1))
sketch8.addConstraint(Sketcher.Constraint("Coincident", 1, 2, 2, 1))
sketch8.addConstraint(Sketcher.Constraint("Coincident", 2, 2, 3, 1))
sketch8.addConstraint(Sketcher.Constraint("Coincident", 3, 2, 0, 1))
sketch8.addConstraint(Sketcher.Constraint("Coincident", 4, 2, 5, 1))
sketch8.addConstraint(Sketcher.Constraint("Coincident", 5, 2, 6, 1))
sketch8.addConstraint(Sketcher.Constraint("Coincident", 6, 2, 7, 1))
sketch8.addConstraint(Sketcher.Constraint("Coincident", 7, 2, 4, 1))
sketch8.addConstraint(Sketcher.Constraint("Vertical", 0))
sketch8.addConstraint(Sketcher.Constraint("Horizontal", 1))
sketch8.addConstraint(Sketcher.Constraint("Vertical", 2))
sketch8.addConstraint(Sketcher.Constraint("Horizontal", 3))
sketch8.addConstraint(Sketcher.Constraint("Vertical", 4))
sketch8.addConstraint(Sketcher.Constraint("Horizontal", 5))
sketch8.addConstraint(Sketcher.Constraint("Vertical", 6))
sketch8.addConstraint(Sketcher.Constraint("Horizontal", 7))
sketch8.addConstraint(Sketcher.Constraint("Vertical", 3, 2, 4, 2))
sketch8.addConstraint(Sketcher.Constraint("Vertical", 2, 2, 5, 2))
sketch8.addConstraint(Sketcher.Constraint("Equal", 2, 4))
sketch8.addConstraint(Sketcher.Constraint("DistanceX", 1, 1, 1, 2, Q("5 mm")))
sketch8.addConstraint(Sketcher.Constraint("DistanceY", 0, 1, 0, 2, Q("17.5 mm")))
sketch8.addConstraint(Sketcher.Constraint("DistanceX", -1, 1, 0, 2, Q("80 mm")))
sketch8.addConstraint(Sketcher.Constraint("DistanceY", 2, 2, -1, 1, Q("30 mm")))
sketch8.addConstraint(Sketcher.Constraint("DistanceY", 6, 2, -1, 1, Q("55 mm")))
pocket3 = body.newObject("PartDesign::Pocket", "Pocket002")
pocket3.Profile = sketch8
pocket3.Length = 2
pocket3.Reversed = True
doc.recompute()

chamfer = body.newObject("PartDesign::Chamfer", "Chamfer")
chamfer.Base = (pocket3, edges_at(pocket3, [
    (-85, 2.5, 30),
    (-85, 2.5, -30),
    (-8, 2.5, -30),
    (32, 5, -60),
    (85, 5, -60),
]))
chamfer.Size = 5
doc.recompute()

fillet = body.newObject("PartDesign::Fillet", "Fillet")
fillet.Base = (chamfer, edges_at(chamfer, [(-8, 2.5, -6)]))
fillet.Radius = 5

# Sketch on XZ plane
sketch9 = body.newObject("Sketcher::SketchObject", "Sketch008")
sketch9.AttachmentSupport = (doc.getObject("XZ_Plane"), [""])
sketch9.MapMode = "FlatFace"
sketch9.AttachmentOffset = App.Placement(App.Vector(0, 0, -5), App.Rotation())
sketch9.addGeometry(Part.LineSegment(App.Vector(-68, -16, 0), App.Vector(-68, 16, 0)), False)
sketch9.addGeometry(Part.LineSegment(App.Vector(-68, 16, 0), App.Vector(-25, 16, 0)), False)
sketch9.addGeometry(Part.LineSegment(App.Vector(-25, 16, 0), App.Vector(-25, -16, 0)), False)
sketch9.addGeometry(Part.LineSegment(App.Vector(-25, -16, 0), App.Vector(-68, -16, 0)), False)
sketch9.addGeometry(Part.LineSegment(App.Vector(15, 0, 0), App.Vector(15, 24, 0)), False)
sketch9.addGeometry(Part.LineSegment(App.Vector(15, 24, 0), App.Vector(75, 24, 0)), False)
sketch9.addGeometry(Part.LineSegment(App.Vector(75, 24, 0), App.Vector(75, 0, 0)), False)
sketch9.addGeometry(Part.LineSegment(App.Vector(75, 0, 0), App.Vector(15, 0, 0)), False)
sketch9.addConstraint(Sketcher.Constraint("Coincident", 0, 2, 1, 1))
sketch9.addConstraint(Sketcher.Constraint("Coincident", 1, 2, 2, 1))
sketch9.addConstraint(Sketcher.Constraint("Coincident", 2, 2, 3, 1))
sketch9.addConstraint(Sketcher.Constraint("Coincident", 3, 2, 0, 1))
sketch9.addConstraint(Sketcher.Constraint("Coincident", 4, 2, 5, 1))
sketch9.addConstraint(Sketcher.Constraint("Coincident", 5, 2, 6, 1))
sketch9.addConstraint(Sketcher.Constraint("Coincident", 6, 2, 7, 1))
sketch9.addConstraint(Sketcher.Constraint("Coincident", 7, 2, 4, 1))
sketch9.addConstraint(Sketcher.Constraint("Vertical", 0))
sketch9.addConstraint(Sketcher.Constraint("Horizontal", 1))
sketch9.addConstraint(Sketcher.Constraint("Vertical", 2))
sketch9.addConstraint(Sketcher.Constraint("Horizontal", 3))
sketch9.addConstraint(Sketcher.Constraint("Vertical", 4))
sketch9.addConstraint(Sketcher.Constraint("Horizontal", 5))
sketch9.addConstraint(Sketcher.Constraint("Vertical", 6))
sketch9.addConstraint(Sketcher.Constraint("Horizontal", 7))
sketch9.addConstraint(Sketcher.Constraint("DistanceX", 1, 1, 1, 2, Q("43 mm")))
sketch9.addConstraint(Sketcher.Constraint("DistanceX", 5, 1, 5, 2, Q("60 mm")))
sketch9.addConstraint(Sketcher.Constraint("DistanceY", 4, 1, 4, 2, Q("24.8 mm")))
sketch9.addConstraint(Sketcher.Constraint("DistanceX", 0, 2, -1, 1, Q("68 mm")))
sketch9.addConstraint(Sketcher.Constraint("DistanceX", -1, 1, 4, 2, Q("15 mm")))
sketch9.addConstraint(Sketcher.Constraint("DistanceY", -1, 1, 4, 2, Q("24.4 mm")))
sketch9.addConstraint(Sketcher.Constraint("DistanceY", 0, 1, 0, 2, Q("32.847222 mm")))
sketch9.addConstraint(Sketcher.Constraint("DistanceY", -1, 1, 0, 2, Q("16.423611 mm")))
pocket4 = body.newObject("PartDesign::Pocket", "Pocket003")
pocket4.Profile = sketch9
pocket4.Type = "ThroughAll"
pocket4.Reversed = True
doc.recompute()

fillet2 = body.newObject("PartDesign::Fillet", "Fillet001")
fillet2.Base = (pocket4, edges_at(pocket4, [
    (-25, 2.5, -16.424),
    (-25, 2.5, 16.424),
    (-68, 2.5, 16.424),
    (-68, 2.5, -16.424),
    (75, 2.5, -0.4),
    (75, 2.5, 24.4),
    (15, 2.5, 24.4),
    (15, 2.5, -0.4),
]))
fillet2.Radius = 5

# Sketch on YZ plane
sketch10 = body.newObject("Sketcher::SketchObject", "Sketch009")
sketch10.AttachmentSupport = (doc.getObject("YZ_Plane"), [""])
sketch10.MapMode = "FlatFace"
sketch10.AttachmentOffset = App.Placement(App.Vector(0, 0, -69.76), App.Rotation())
sketch10.addGeometry(Part.LineSegment(App.Vector(-5.8, -24.1, 0), App.Vector(5, -24.1, 0)), False)
sketch10.addGeometry(Part.LineSegment(App.Vector(5, -24.1, 0), App.Vector(5, -22.7, 0)), False)
sketch10.addGeometry(Part.LineSegment(App.Vector(5, -22.7, 0), App.Vector(-5, -22.7, 0)), False)
sketch10.addGeometry(Part.LineSegment(App.Vector(-5, -22.7, 0), App.Vector(-5.8, -24.1, 0)), False)
sketch10.addGeometry(Part.LineSegment(App.Vector(5, -24.1, 0), App.Vector(-5.8, -24.1, 0)), True)  # axis
sketch10.addConstraint(Sketcher.Constraint("Coincident", 0, 2, 1, 1))
sketch10.addConstraint(Sketcher.Constraint("Coincident", 1, 2, 2, 1))
sketch10.addConstraint(Sketcher.Constraint("Coincident", 2, 2, 3, 1))
sketch10.addConstraint(Sketcher.Constraint("Coincident", 3, 2, 0, 1))
sketch10.addConstraint(Sketcher.Constraint("Horizontal", 0))
sketch10.addConstraint(Sketcher.Constraint("Vertical", 1))
sketch10.addConstraint(Sketcher.Constraint("Horizontal", 2))
sketch10.addConstraint(Sketcher.Constraint("Horizontal", 4))
sketch10.addConstraint(Sketcher.Constraint("Coincident", 4, 1, 0, 2))
sketch10.addConstraint(Sketcher.Constraint("Equal", 0, 4))
sketch10.addConstraint(Sketcher.Constraint("DistanceX", 2, 2, 2, 1, Q("10 mm")))
sketch10.addConstraint(Sketcher.Constraint("Angle", 3, Q("-121 deg")))
sketch10.addConstraint(Sketcher.Constraint("DistanceY", 1, 1, 1, 2, Q("1.4 mm")))
sketch10.addConstraint(Sketcher.Constraint("DistanceX", -1, 1, 0, 2, Q("5 mm")))
sketch10.addConstraint(Sketcher.Constraint("DistanceY", 0, 2, -1, 1, Q("24.13 mm")))
groove = body.newObject("PartDesign::Groove", "Groove")
groove.Profile = sketch10
groove.ReferenceAxis = (sketch10, ["Axis0"])
groove.Angle = 360
doc.recompute()

datumline = body.newObject("PartDesign::Line", "DatumLine")
datumline.Placement = App.Placement(App.Vector(0, 0, 0), App.Rotation(App.Vector(0, 0, 1), App.Vector(0.957826285, 0, 0.287347886)))
linearpattern = body.newObject("PartDesign::LinearPattern", "LinearPattern")
linearpattern.Originals = [groove]
linearpattern.Direction = (datumline, [""])
linearpattern.Mode = "offset"
linearpattern.Offset = 53.036757
linearpattern.Occurrences = 2
body.Tip = linearpattern
doc.recompute()

datumline2 = body.newObject("PartDesign::Line", "DatumLine001")
datumline2.Placement = App.Placement(App.Vector(0, 0, 0), App.Rotation(App.Vector(0, 0, 1), App.Vector(0.966149789, 0, 0.257981752)))
linearpattern2 = body.newObject("PartDesign::LinearPattern", "LinearPattern001")
linearpattern2.Originals = [groove]
linearpattern2.Direction = (datumline2, [""])
linearpattern2.Mode = "offset"
linearpattern2.Offset = 79.966896
linearpattern2.Occurrences = 2
body.Tip = linearpattern2
doc.recompute()

datumline3 = body.newObject("PartDesign::Line", "DatumLine002")
datumline3.Placement = App.Placement(App.Vector(0, 0, 0), App.Rotation(App.Vector(0, 0, 1), App.Vector(-0.026306682, 0, 0.999653919)))
linearpattern3 = body.newObject("PartDesign::LinearPattern", "LinearPattern002")
linearpattern3.Originals = [groove]
linearpattern3.Direction = (datumline3, [""])
linearpattern3.Mode = "offset"
linearpattern3.Offset = 48.276708
linearpattern3.Occurrences = 2
body.Tip = linearpattern3
doc.recompute()

datumline4 = body.newObject("PartDesign::Line", "DatumLine003")
datumline4.Placement = App.Placement(App.Vector(0, 0, 0), App.Rotation(App.Vector(0, 0, 1), App.Vector(0.761939318, 0, 0.64764842)))
linearpattern4 = body.newObject("PartDesign::LinearPattern", "LinearPattern003")
linearpattern4.Originals = [groove]
linearpattern4.Direction = (datumline4, [""])
linearpattern4.Mode = "offset"
linearpattern4.Offset = 66.671976
linearpattern4.Occurrences = 2
body.Tip = linearpattern4
doc.recompute()

datumline5 = body.newObject("PartDesign::Line", "DatumLine004")
datumline5.Placement = App.Placement(App.Vector(0, 0, 0), App.Rotation(App.Vector(0, 0, 1), App.Vector(0.831437207, 0, 0.555618729)))
linearpattern5 = body.newObject("PartDesign::LinearPattern", "LinearPattern004")
linearpattern5.Originals = [groove]
linearpattern5.Direction = (datumline5, [""])
linearpattern5.Mode = "offset"
linearpattern5.Offset = 92.923434
linearpattern5.Occurrences = 2
body.Tip = linearpattern5
doc.recompute()

datumline6 = body.newObject("PartDesign::Line", "DatumLine005")
datumline6.Placement = App.Placement(App.Vector(0, 0, 0), App.Rotation(App.Vector(0, 0, 1), App.Vector(0.947034784, 0, 0.321130999)))
linearpattern6 = body.newObject("PartDesign::LinearPattern", "LinearPattern005")
linearpattern6.Originals = [groove]
linearpattern6.Direction = (datumline6, [""])
linearpattern6.Mode = "offset"
linearpattern6.Offset = 160.77551
linearpattern6.Occurrences = 2
body.Tip = linearpattern6
doc.recompute()

datumline7 = body.newObject("PartDesign::Line", "DatumLine006")
datumline7.Placement = App.Placement(App.Vector(0, 0, 0), App.Rotation(App.Vector(0, 0, 1), App.Vector(0.990945449, 0, 0.134265103)))
linearpattern7 = body.newObject("PartDesign::LinearPattern", "LinearPattern006")
linearpattern7.Originals = [groove]
linearpattern7.Direction = (datumline7, [""])
linearpattern7.Mode = "offset"
linearpattern7.Offset = 153.651243
linearpattern7.Occurrences = 2
body.Tip = linearpattern7

doc.recompute()
